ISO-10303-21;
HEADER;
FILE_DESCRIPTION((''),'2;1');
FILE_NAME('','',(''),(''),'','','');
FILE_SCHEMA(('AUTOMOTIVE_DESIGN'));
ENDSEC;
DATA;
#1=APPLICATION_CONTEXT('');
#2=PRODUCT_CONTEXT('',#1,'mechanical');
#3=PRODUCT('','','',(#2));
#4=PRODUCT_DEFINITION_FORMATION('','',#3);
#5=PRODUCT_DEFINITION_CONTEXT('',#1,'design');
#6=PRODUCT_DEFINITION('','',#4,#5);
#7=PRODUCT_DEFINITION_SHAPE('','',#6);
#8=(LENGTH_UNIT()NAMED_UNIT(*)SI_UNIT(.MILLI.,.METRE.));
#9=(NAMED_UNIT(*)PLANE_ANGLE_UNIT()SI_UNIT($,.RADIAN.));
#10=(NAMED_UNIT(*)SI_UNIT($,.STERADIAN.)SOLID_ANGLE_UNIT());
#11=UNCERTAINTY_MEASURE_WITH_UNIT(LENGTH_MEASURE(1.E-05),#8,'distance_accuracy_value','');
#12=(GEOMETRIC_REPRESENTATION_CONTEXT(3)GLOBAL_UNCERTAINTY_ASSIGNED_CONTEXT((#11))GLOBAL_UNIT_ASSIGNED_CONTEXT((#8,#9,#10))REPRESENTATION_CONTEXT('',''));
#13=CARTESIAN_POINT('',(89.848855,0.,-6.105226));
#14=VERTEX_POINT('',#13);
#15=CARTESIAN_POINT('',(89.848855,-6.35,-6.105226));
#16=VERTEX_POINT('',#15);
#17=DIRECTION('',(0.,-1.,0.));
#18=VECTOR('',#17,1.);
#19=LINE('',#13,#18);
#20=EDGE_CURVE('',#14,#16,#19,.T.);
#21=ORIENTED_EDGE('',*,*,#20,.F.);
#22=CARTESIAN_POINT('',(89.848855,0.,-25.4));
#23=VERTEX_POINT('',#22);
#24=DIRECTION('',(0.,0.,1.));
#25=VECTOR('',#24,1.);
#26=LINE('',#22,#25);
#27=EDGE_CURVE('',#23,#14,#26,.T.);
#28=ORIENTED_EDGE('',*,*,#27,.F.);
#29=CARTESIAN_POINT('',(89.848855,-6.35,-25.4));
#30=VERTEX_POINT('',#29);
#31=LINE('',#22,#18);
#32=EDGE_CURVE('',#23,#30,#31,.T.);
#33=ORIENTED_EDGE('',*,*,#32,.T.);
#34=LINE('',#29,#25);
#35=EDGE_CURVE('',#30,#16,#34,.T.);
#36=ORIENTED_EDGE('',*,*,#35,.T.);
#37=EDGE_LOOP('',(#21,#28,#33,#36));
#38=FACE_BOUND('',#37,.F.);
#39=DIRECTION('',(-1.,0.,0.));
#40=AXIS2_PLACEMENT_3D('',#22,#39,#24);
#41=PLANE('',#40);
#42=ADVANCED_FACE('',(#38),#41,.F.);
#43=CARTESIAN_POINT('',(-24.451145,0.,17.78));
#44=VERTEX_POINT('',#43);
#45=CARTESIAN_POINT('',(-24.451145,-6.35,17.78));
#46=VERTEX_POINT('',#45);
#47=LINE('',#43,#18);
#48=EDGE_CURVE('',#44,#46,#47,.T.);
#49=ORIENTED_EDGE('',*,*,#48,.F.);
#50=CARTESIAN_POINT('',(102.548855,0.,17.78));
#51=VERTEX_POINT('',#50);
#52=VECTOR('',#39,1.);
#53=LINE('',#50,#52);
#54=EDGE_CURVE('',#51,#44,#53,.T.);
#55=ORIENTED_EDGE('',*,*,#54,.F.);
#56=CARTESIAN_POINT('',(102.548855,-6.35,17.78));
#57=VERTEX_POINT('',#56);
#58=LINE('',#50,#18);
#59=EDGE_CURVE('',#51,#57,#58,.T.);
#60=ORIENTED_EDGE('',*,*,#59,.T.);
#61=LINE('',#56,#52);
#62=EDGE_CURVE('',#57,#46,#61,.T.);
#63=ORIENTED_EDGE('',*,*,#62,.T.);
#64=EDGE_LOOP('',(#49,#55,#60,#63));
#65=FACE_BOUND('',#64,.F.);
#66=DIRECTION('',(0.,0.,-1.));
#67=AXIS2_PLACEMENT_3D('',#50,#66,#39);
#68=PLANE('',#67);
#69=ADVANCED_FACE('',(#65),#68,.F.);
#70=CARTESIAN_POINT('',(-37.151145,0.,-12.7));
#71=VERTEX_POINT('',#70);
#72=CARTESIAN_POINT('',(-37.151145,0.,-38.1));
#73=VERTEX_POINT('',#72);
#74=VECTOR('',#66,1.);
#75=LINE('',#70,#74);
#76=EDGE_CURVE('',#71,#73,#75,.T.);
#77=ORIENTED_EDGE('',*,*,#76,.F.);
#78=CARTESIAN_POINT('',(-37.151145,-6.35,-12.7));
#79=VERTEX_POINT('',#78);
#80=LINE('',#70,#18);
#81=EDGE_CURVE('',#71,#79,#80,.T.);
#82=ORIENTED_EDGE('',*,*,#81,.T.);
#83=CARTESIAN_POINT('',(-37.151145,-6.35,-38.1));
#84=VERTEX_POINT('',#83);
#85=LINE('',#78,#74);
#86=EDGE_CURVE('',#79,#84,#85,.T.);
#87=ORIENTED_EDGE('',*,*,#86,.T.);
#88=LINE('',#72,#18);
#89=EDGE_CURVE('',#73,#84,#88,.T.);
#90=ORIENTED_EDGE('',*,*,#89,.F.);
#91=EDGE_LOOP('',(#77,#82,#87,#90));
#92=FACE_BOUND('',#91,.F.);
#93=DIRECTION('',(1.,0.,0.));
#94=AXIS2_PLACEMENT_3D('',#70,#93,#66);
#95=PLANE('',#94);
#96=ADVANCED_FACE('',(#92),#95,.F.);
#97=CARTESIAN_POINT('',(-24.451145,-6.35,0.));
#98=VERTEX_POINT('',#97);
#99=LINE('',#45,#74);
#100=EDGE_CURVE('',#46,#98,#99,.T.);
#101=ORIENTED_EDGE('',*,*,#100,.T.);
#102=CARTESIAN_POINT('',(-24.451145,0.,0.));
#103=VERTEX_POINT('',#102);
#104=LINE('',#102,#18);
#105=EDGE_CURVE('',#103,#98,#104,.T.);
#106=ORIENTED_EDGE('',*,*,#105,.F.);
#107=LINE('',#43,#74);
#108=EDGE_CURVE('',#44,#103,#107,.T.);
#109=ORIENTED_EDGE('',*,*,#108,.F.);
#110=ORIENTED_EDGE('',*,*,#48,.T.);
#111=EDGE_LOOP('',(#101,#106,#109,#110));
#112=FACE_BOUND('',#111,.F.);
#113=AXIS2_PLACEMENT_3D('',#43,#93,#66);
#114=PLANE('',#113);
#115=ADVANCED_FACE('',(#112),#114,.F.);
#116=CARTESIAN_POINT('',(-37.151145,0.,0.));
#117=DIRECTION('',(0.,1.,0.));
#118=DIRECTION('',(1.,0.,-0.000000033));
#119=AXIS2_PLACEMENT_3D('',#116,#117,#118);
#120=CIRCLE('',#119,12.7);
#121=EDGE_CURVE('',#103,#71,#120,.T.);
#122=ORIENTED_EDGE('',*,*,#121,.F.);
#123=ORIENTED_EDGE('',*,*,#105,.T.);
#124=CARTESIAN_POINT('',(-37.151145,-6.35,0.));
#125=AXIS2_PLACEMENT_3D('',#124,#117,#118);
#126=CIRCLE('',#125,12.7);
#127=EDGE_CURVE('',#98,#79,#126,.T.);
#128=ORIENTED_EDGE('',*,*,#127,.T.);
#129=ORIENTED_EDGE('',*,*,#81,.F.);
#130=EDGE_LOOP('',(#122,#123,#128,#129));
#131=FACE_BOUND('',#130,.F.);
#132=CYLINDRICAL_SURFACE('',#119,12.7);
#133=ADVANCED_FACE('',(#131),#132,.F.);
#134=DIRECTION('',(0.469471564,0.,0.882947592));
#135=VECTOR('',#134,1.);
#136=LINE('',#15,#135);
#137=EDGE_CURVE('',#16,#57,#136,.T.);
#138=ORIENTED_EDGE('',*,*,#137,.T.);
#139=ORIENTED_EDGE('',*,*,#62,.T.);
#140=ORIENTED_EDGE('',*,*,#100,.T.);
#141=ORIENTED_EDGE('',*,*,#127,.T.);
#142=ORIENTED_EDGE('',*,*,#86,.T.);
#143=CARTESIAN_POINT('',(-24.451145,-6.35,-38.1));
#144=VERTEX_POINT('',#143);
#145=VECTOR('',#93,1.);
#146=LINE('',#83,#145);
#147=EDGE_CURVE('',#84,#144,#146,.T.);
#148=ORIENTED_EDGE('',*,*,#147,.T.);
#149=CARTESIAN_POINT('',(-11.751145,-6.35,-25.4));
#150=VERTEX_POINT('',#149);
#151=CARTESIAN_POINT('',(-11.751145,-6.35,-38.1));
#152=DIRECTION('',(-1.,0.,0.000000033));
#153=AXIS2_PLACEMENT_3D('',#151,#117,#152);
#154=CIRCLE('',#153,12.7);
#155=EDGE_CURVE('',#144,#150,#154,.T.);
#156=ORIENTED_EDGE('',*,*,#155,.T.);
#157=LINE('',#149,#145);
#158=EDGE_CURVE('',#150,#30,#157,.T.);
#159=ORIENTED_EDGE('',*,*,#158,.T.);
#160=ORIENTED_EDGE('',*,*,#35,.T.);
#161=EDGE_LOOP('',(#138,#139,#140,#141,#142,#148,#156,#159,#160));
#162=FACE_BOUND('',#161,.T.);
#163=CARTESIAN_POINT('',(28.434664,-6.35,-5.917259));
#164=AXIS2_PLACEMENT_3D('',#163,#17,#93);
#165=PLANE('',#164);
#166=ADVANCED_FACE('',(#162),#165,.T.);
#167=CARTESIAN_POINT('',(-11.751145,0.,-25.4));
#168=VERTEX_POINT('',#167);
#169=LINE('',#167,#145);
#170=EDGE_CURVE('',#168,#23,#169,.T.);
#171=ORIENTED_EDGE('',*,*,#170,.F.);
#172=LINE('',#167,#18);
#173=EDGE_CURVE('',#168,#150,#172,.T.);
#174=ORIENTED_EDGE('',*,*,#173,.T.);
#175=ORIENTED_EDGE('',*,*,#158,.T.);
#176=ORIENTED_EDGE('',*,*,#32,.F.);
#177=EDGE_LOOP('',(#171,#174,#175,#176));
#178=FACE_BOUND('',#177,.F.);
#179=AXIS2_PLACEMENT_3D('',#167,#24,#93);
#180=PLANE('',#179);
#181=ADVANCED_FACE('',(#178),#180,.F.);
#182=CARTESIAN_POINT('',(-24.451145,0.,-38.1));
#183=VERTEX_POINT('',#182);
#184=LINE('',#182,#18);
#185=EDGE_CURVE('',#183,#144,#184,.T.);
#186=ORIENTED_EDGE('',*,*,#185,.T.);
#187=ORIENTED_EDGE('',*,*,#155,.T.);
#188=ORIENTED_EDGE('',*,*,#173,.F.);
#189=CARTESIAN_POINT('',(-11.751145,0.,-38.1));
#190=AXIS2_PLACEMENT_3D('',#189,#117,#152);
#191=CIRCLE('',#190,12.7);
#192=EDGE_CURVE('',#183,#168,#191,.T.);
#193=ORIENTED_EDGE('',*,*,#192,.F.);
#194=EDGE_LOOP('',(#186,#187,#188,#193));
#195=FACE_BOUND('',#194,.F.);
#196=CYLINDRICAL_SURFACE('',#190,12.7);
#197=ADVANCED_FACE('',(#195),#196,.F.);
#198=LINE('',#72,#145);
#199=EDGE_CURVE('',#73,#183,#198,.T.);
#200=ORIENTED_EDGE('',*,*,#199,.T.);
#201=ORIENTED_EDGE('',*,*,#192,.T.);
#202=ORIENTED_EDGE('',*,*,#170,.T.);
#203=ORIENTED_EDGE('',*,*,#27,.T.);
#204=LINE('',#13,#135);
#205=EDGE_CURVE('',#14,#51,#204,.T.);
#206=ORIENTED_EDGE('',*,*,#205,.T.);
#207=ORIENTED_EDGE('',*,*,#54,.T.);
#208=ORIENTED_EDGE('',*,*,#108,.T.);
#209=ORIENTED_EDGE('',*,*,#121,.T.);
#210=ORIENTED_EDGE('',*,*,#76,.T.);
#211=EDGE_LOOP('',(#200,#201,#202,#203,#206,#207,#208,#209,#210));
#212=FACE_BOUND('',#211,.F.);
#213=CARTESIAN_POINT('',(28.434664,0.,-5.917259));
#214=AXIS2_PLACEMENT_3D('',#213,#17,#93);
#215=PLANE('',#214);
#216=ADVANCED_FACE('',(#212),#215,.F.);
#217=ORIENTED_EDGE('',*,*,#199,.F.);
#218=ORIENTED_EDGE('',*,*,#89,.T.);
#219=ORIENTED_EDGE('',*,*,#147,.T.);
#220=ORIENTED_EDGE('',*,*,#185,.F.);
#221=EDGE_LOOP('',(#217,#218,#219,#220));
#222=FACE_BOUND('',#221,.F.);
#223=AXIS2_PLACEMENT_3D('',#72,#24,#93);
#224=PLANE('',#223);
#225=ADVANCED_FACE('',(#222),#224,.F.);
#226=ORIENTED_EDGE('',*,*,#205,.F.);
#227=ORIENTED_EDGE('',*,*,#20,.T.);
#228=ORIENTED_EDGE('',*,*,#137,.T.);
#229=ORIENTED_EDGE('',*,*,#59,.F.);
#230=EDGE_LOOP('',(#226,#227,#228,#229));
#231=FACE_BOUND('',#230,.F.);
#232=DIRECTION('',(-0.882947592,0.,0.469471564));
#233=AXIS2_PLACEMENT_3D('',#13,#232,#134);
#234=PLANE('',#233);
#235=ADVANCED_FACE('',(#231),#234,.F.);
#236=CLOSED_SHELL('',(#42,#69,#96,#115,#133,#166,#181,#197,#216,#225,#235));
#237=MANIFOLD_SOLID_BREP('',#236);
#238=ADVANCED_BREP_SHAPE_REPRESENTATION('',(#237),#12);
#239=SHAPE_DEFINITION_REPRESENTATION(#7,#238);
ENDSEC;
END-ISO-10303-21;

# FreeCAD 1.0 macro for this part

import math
import FreeCAD as App
import Part
import Sketcher
from FreeCAD import Vector
Q = App.Units.Quantity

doc = App.newDocument("Part")
body = doc.addObject("PartDesign::Body", "Body")

# Sketch on XZ plane
sketch1 = body.newObject("Sketcher::SketchObject", "Sketch")
sketch1.AttachmentSupport = (doc.getObject("XZ_Plane"), [""])
sketch1.MapMode = "FlatFace"
sketch1.addGeometry([
    Part.LineSegment(Vector(102.548855, 17.78, 0), Vector(-24.451145, 17.78, 0)),  # 0
    Part.LineSegment(Vector(-24.451145, 17.78, 0), Vector(-24.451145, 0, 0)),  # 1
    Part.ArcOfCircle(Part.Circle(Vector(-37.151145, 0, 0), Vector(0, 0, 1), 12.7), math.radians(-89.999998), math.radians(-0.000002)),  # 2
    Part.LineSegment(Vector(-37.151145, -12.7, 0), Vector(-37.151145, -38.1, 0)),  # 3
    Part.LineSegment(Vector(-37.151145, -38.1, 0), Vector(-24.451145, -38.1, 0)),  # 4
    Part.ArcOfCircle(Part.Circle(Vector(-11.751145, -38.1, 0), Vector(0, 0, 1), 12.7), math.radians(90.000002), math.radians(179.999998)),  # 5
    Part.LineSegment(Vector(-11.751145, -25.4, 0), Vector(89.848855, -25.4, 0)),  # 6
    Part.LineSegment(Vector(89.848855, -25.4, 0), Vector(89.848855, -6.105226, 0)),  # 7
    Part.LineSegment(Vector(89.848855, -6.105226, 0), Vector(102.548855, 17.78, 0)),  # 8
], False)
sketch1.addConstraint([
    Sketcher.Constraint("Coincident", 0, 2, 1, 1),
    Sketcher.Constraint("Tangent", 1, 2, 2, 2),
    Sketcher.Constraint("Coincident", 2, 1, 3, 1),
    Sketcher.Constraint("Coincident", 3, 2, 4, 1),
    Sketcher.Constraint("Coincident", 4, 2, 5, 2),
    Sketcher.Constraint("Tangent", 5, 1, 6, 1),
    Sketcher.Constraint("Coincident", 6, 2, 7, 1),
    Sketcher.Constraint("Coincident", 7, 2, 8, 1),
    Sketcher.Constraint("Coincident", 8, 2, 0, 1),
    Sketcher.Constraint("Horizontal", 0),
    Sketcher.Constraint("Vertical", 1),
    Sketcher.Constraint("Vertical", 3),
    Sketcher.Constraint("Horizontal", 4),
    Sketcher.Constraint("Horizontal", 6),
    Sketcher.Constraint("Vertical", 7),
    Sketcher.Constraint("Equal", 2, 5),
    Sketcher.Constraint("PointOnObject", 2, 3, -1),
    Sketcher.Constraint("Horizontal", 5, 3, 3, 2),
    Sketcher.Constraint("Vertical", 1, 2, 4, 2),
    Sketcher.Constraint("Radius", 2, Q("0.5 in")),
    Sketcher.Constraint("DistanceX", 0, 2, 0, 1, Q("5 in")),
    Sketcher.Constraint("DistanceX", 6, 1, 6, 2, Q("4 in")),
    Sketcher.Constraint("DistanceY", 3, 2, 3, 1, Q("1 in")),
    Sketcher.Constraint("DistanceX", 4, 1, 4, 2, Q("0.5 in")),
    Sketcher.Constraint("DistanceY", 1, 2, 1, 1, Q("0.7 in")),
    Sketcher.Constraint("Angle", 8, Q("62 deg")),
    Sketcher.Constraint("DistanceX", 2, 3, -1, 1, 37.151145),
])
pad1 = body.newObject("PartDesign::Pad", "Pad")
pad1.Profile = sketch1
pad1.Length = Q("0.25 in")

doc.recompute()
